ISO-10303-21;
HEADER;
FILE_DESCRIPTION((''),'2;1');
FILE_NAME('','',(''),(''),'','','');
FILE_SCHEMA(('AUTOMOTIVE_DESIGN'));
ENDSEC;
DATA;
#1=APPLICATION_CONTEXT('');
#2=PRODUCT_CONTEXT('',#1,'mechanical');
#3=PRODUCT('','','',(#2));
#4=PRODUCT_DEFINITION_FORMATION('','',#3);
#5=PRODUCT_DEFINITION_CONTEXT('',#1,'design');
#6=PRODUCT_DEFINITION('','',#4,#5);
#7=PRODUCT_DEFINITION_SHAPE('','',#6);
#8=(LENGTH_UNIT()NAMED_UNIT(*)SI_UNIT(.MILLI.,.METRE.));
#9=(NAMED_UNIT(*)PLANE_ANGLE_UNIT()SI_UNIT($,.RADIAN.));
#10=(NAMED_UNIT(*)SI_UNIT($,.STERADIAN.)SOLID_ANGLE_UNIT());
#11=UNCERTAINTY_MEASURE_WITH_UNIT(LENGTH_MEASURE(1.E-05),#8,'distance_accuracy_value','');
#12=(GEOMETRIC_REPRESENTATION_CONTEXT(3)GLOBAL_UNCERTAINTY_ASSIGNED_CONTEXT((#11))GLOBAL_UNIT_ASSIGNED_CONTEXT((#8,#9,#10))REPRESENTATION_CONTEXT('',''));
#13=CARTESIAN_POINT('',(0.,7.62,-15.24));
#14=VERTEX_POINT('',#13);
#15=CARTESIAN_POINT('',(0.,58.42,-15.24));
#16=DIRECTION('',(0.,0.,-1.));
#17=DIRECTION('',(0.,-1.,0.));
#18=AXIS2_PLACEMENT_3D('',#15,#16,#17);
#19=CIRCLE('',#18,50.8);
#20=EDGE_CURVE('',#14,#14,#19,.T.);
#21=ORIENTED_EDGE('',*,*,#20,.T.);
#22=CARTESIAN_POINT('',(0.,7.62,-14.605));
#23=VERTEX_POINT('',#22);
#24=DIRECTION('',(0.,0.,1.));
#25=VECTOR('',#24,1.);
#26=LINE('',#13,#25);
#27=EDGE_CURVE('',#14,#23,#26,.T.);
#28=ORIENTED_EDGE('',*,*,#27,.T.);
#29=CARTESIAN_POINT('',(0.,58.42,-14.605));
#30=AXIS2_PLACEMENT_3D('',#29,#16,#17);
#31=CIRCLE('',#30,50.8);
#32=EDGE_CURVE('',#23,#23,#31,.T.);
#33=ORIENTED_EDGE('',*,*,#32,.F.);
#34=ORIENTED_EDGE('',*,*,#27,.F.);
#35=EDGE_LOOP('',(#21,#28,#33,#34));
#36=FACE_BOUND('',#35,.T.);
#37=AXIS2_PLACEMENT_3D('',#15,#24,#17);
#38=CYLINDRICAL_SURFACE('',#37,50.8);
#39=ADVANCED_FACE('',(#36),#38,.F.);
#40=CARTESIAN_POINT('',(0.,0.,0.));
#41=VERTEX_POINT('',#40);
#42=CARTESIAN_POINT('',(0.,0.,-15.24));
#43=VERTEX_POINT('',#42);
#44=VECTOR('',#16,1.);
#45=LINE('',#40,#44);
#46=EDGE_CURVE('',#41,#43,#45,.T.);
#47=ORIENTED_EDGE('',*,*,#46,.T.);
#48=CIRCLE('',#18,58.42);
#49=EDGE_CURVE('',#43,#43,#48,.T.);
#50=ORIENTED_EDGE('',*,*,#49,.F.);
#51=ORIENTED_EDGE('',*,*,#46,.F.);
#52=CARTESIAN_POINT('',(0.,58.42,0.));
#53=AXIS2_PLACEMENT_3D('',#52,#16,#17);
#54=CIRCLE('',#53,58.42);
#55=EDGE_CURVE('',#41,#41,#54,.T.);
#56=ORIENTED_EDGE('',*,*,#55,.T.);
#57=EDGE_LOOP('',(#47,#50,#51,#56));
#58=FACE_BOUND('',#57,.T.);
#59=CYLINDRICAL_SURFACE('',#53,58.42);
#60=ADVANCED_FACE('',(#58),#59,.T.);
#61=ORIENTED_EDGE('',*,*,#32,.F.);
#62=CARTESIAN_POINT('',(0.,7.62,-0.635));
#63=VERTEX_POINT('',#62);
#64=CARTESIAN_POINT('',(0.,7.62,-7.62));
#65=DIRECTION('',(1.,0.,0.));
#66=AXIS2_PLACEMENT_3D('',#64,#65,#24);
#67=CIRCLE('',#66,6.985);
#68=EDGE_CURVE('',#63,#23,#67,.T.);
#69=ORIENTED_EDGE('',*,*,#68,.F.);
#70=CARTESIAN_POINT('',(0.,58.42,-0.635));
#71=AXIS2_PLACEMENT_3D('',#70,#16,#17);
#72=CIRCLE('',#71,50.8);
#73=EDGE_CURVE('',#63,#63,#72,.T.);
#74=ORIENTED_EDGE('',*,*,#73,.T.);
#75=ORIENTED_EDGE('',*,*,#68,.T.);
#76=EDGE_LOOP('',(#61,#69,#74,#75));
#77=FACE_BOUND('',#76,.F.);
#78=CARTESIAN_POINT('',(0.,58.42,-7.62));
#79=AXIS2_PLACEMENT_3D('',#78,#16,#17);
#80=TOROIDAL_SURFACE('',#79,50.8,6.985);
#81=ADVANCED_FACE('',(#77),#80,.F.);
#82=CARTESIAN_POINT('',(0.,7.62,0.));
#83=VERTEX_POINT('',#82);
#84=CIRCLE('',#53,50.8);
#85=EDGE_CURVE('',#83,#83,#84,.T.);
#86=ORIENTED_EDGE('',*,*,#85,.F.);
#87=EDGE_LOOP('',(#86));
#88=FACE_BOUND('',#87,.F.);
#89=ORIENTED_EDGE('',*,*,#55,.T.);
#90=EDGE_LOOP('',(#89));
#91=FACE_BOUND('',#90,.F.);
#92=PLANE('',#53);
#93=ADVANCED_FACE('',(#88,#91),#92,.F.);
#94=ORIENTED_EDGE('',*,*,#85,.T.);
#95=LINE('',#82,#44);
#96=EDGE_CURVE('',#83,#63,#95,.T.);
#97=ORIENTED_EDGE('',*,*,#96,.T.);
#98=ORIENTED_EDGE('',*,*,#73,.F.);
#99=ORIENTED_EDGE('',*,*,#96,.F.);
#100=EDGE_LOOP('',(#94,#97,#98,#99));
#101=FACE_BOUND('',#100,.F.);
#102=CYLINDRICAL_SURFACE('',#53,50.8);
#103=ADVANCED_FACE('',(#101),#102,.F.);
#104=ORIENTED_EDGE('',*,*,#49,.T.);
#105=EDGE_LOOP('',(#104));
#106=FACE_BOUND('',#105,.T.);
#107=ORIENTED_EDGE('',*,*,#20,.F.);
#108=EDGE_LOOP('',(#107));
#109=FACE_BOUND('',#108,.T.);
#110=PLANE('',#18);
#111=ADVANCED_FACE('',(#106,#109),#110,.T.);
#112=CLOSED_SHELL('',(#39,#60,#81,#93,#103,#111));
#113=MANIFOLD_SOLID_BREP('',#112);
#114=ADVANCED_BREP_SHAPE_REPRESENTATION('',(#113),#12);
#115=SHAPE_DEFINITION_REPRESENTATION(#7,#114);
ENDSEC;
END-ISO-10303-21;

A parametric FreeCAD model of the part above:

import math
import FreeCAD as App
import Part
import Sketcher
from FreeCAD import Vector
Q = App.Units.Quantity

doc = App.newDocument("Part")
body = doc.addObject("PartDesign::Body", "Body")

sketch1 = body.newObject("Sketcher::SketchObject", "Sketch")
sketch1.AttachmentSupport = (doc.getObject("YZ_Plane"), [""])
sketch1.MapMode = "FlatFace"
sketch1.addGeometry([
    Part.LineSegment(Vector(7.6, 0, 0), Vector(0, 0, 0)),
    Part.LineSegment(Vector(0, 0, 0), Vector(0, -15.2, 0)),
    Part.LineSegment(Vector(0, -15.2, 0), Vector(7.6, -15.2, 0)),
    Part.LineSegment(Vector(7.6, -15.2, 0), Vector(7.6, -14.6, 0)),
    Part.ArcOfCircle(Part.Circle(Vector(7.6, -7.6, 0), Vector(0, 0, 1), 7), math.radians(90), math.radians(270)),
    Part.LineSegment(Vector(7.6, -0.6, 0), Vector(7.6, 0, 0)),
], False)
sketch1.addGeometry(Part.LineSegment(Vector(58.4, 0, 0), Vector(58.4, -15.2, 0)), True)
sketch1.addConstraint([
    Sketcher.Constraint("Coincident", 0, 2, 1, 1),
    Sketcher.Constraint("Coincident", 1, 2, 2, 1),
    Sketcher.Constraint("Coincident", 2, 2, 3, 1),
    Sketcher.Constraint("Coincident", 3, 2, 4, 2),
    Sketcher.Constraint("Coincident", 4, 1, 5, 1),
    Sketcher.Constraint("Coincident", 5, 2, 0, 1),
    Sketcher.Constraint("Horizontal", 0),
    Sketcher.Constraint("Vertical", 1),
    Sketcher.Constraint("Horizontal", 2),
    Sketcher.Constraint("Vertical", 3),
    Sketcher.Constraint("Vertical", 5),
    Sketcher.Constraint("Vertical", 6),
    Sketcher.Constraint("Coincident", 0, 2, -1, 1),
    Sketcher.Constraint("PointOnObject", 6, 1, -1),
    Sketcher.Constraint("Horizontal", 2, 2, 6, 2),
    Sketcher.Constraint("Vertical", 4, 3, 2, 2),
    Sketcher.Constraint("Vertical", 3, 2, 4, 1),
    Sketcher.Constraint("Equal", 3, 5),
    Sketcher.Constraint("DistanceX", 0, 2, 0, 1, Q("0.3 in")),
    Sketcher.Constraint("DistanceY", 1, 2, 1, 1, Q("0.6 in")),
    Sketcher.Constraint("Radius", 4, Q("0.275 in")),
    Sketcher.Constraint("DistanceX", 5, 2, 6, 1, Q("2 in")),
])
revolution = body.newObject("PartDesign::Revolution", "Revolution")
revolution.Profile = sketch1
revolution.ReferenceAxis = (sketch1, ["Axis0"])
revolution.Angle = 360

doc.recompute()
